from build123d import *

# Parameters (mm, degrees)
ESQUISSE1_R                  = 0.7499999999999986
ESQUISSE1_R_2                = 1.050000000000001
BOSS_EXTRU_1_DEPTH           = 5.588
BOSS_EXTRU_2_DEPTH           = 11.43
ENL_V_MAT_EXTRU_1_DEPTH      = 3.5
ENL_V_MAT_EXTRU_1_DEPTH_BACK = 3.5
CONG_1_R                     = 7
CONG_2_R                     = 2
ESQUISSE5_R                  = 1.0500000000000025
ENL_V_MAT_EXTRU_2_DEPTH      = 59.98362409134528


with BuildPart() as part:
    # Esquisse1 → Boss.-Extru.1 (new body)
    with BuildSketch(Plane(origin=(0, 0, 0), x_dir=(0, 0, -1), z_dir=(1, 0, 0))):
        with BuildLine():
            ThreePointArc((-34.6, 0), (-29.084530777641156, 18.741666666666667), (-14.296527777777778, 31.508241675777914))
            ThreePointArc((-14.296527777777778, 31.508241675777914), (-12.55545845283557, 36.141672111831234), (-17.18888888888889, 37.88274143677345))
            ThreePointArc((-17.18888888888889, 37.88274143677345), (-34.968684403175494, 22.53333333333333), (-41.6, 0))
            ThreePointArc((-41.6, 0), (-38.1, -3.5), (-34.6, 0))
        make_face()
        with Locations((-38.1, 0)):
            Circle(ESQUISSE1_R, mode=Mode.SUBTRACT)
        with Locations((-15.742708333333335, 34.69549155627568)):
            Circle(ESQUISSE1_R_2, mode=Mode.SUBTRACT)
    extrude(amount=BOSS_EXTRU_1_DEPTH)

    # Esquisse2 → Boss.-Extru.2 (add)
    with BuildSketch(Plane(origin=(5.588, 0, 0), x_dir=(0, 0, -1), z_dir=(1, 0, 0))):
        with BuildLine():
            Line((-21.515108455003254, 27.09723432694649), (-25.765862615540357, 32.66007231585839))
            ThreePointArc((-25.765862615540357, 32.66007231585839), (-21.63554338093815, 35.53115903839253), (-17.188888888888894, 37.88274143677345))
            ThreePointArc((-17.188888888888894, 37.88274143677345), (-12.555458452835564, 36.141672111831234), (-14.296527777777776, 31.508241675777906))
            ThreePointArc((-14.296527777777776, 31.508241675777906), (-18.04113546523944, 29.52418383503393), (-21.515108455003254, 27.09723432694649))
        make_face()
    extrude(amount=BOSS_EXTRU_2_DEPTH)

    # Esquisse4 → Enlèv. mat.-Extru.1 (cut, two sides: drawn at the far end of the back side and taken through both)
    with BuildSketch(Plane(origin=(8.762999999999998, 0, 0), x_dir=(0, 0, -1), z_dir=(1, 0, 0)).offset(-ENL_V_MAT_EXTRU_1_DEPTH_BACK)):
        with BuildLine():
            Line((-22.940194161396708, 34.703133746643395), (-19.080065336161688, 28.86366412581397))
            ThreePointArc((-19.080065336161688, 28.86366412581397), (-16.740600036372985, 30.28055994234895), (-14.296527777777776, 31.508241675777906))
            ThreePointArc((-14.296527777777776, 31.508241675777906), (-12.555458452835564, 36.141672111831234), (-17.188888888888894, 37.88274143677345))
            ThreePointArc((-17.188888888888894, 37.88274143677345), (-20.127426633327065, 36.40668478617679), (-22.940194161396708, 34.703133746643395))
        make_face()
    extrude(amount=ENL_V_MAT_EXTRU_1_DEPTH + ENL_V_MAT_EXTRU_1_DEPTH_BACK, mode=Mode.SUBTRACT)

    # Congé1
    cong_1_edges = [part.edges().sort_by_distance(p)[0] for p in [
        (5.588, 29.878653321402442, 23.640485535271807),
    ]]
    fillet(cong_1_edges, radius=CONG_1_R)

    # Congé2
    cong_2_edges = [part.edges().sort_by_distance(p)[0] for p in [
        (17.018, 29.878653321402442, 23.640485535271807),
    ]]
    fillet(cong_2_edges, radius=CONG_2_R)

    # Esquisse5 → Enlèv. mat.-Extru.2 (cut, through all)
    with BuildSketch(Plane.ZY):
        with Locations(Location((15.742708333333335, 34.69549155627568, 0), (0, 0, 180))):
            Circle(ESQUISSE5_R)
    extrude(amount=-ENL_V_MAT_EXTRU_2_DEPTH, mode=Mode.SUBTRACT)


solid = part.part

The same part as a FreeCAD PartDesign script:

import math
import FreeCAD as App
import Part
import Sketcher
from FreeCAD import Vector
Q = App.Units.Quantity


def edges_at(feature, points):
    """Names of the edges that pass closest to the given points."""
    edges = feature.Shape.Edges
    near = lambda p: min(range(len(edges)), key=lambda i: edges[i].distToShape(Part.Vertex(*p))[0])
    return sorted({f"Edge{near(p) + 1}" for p in points})

doc = App.newDocument("Part")
body = doc.addObject("PartDesign::Body", "Body")

# Sketch on YZ plane
sketch1 = body.newObject("Sketcher::SketchObject", "Sketch")
sketch1.AttachmentSupport = (doc.getObject("YZ_Plane"), [""])
sketch1.MapMode = "FlatFace"
sketch1.addGeometry([
    Part.ArcOfCircle(Part.Circle(Vector(0, 0, 0), Vector(0, 0, 1), 34.6), math.radians(24), math.radians(90)),  # 0
    Part.ArcOfCircle(Part.Circle(Vector(34.7, 15.7, 0), Vector(0, 0, 1), 3.5), math.radians(-156), math.radians(24)),  # 1
    Part.ArcOfCircle(Part.Circle(Vector(0, 0, 0), Vector(0, 0, 1), 41.6), math.radians(24), math.radians(90)),  # 2
    Part.ArcOfCircle(Part.Circle(Vector(0, 38.1, 0), Vector(0, 0, 1), 3.5), math.radians(90), math.radians(270)),  # 3
    Part.Circle(Vector(0, 38.1, 0), Vector(0, 0, 1), 0.8),  # 4
    Part.Circle(Vector(34.7, 15.7, 0), Vector(0, 0, 1), 1.1),  # 5
], False)
sketch1.addConstraint([
    Sketcher.Constraint("Tangent", 0, 1, 1, 1),
    Sketcher.Constraint("Tangent", 1, 2, 2, 1),
    Sketcher.Constraint("Tangent", 2, 2, 3, 1),
    Sketcher.Constraint("Tangent", 3, 2, 0, 2),
    Sketcher.Constraint("Coincident", 0, 3, -1, 1),
    Sketcher.Constraint("Coincident", 2, 3, -1, 1),
    Sketcher.Constraint("Coincident", 4, 3, 3, 3),
    Sketcher.Constraint("Coincident", 5, 3, 1, 3),
    Sketcher.Constraint("PointOnObject", 3, 3, -2),
    Sketcher.Constraint("Diameter", 4, Q("1.5 mm")),
    Sketcher.Constraint("Diameter", 5, Q("2.1 mm")),
    Sketcher.Constraint("Radius", 0, Q("34.6 mm")),
    Sketcher.Constraint("Radius", 1, Q("3.5 mm")),
    Sketcher.Constraint("DistanceX", 0, 1, 1, 2, Q("6.3745 mm")),
])
pad1 = body.newObject("PartDesign::Pad", "Pad")
pad1.Profile = sketch1
pad1.Length = 5.588

# Sketch on YZ plane
sketch2 = body.newObject("Sketcher::SketchObject", "Sketch001")
sketch2.AttachmentSupport = (doc.getObject("YZ_Plane"), [""])
sketch2.MapMode = "FlatFace"
sketch2.AttachmentOffset = App.Placement(Vector(0, 0, 5.588), App.Rotation())
sketch2.addGeometry([
    Part.LineSegment(Vector(32.7, 25.8, 0), Vector(27.1, 21.5, 0)),
    Part.ArcOfCircle(Part.Circle(Vector(0, 0, 0), Vector(0, 0, 1), 34.6), math.radians(24.41), math.radians(38.45)),
    Part.ArcOfCircle(Part.Circle(Vector(34.7, 15.7, 0), Vector(0, 0, 1), 3.5), math.radians(-156), math.radians(24)),
    Part.ArcOfCircle(Part.Circle(Vector(0, 0, 0), Vector(0, 0, 1), 41.6), math.radians(24.41), math.radians(38.27)),
], False)
sketch2.addConstraint([
    Sketcher.Constraint("Coincident", 0, 2, 1, 2),
    Sketcher.Constraint("Tangent", 1, 1, 2, 1),
    Sketcher.Constraint("Tangent", 2, 2, 3, 1),
    Sketcher.Constraint("Coincident", 3, 2, 0, 1),
    Sketcher.Constraint("Coincident", 1, 3, -1, 1),
    Sketcher.Constraint("Coincident", 3, 3, -1, 1),
    Sketcher.Constraint("Radius", 1, Q("34.6 mm")),
    Sketcher.Constraint("Radius", 2, Q("3.5 mm")),
    Sketcher.Constraint("DistanceY", 2, 3, 0, 2, Q("5.7724 mm")),
    Sketcher.Constraint("DistanceX", 1, 1, 2, 2, Q("6.3745 mm")),
    Sketcher.Constraint("DistanceX", 3, 2, 2, 2, Q("5.222669 mm")),
])
pad2 = body.newObject("PartDesign::Pad", "Pad001")
pad2.Profile = sketch2
pad2.Length = 11.43

# Sketch on YZ plane
sketch3 = body.newObject("Sketcher::SketchObject", "Sketch002")
sketch3.AttachmentSupport = (doc.getObject("YZ_Plane"), [""])
sketch3.MapMode = "FlatFace"
sketch3.AttachmentOffset = App.Placement(Vector(0, 0, 8.763), App.Rotation())
sketch3.addGeometry([
    Part.LineSegment(Vector(34.7, 22.9, 0), Vector(28.9, 19.1, 0)),
    Part.ArcOfCircle(Part.Circle(Vector(0, 0, 0), Vector(0, 0, 1), 34.6), math.radians(24.41), math.radians(33.47)),
    Part.ArcOfCircle(Part.Circle(Vector(34.7, 15.7, 0), Vector(0, 0, 1), 3.5), math.radians(-156), math.radians(24)),
    Part.ArcOfCircle(Part.Circle(Vector(0, 0, 0), Vector(0, 0, 1), 41.6), math.radians(24.41), math.radians(33.47)),
], False)
sketch3.addConstraint([
    Sketcher.Constraint("Coincident", 0, 2, 1, 2),
    Sketcher.Constraint("Tangent", 1, 1, 2, 1),
    Sketcher.Constraint("Tangent", 2, 2, 3, 1),
    Sketcher.Constraint("Coincident", 3, 2, 0, 1),
    Sketcher.Constraint("Coincident", 1, 3, -1, 1),
    Sketcher.Constraint("Coincident", 3, 3, -1, 1),
    Sketcher.Constraint("Radius", 1, Q("34.6 mm")),
    Sketcher.Constraint("Radius", 2, Q("3.5 mm")),
    Sketcher.Constraint("DistanceX", 1, 1, 2, 2, Q("6.3745 mm")),
    Sketcher.Constraint("DistanceX", 0, 2, 3, 2, Q("5.83947 mm")),
    Sketcher.Constraint("DistanceX", -1, 1, 0, 2, Q("28.863664 mm")),
])
pocket1 = body.newObject("PartDesign::Pocket", "Pocket")
pocket1.Profile = sketch3
pocket1.Type = "TwoLengths"
pocket1.Length = 3.5
pocket1.Length2 = 3.5
pocket1.Reversed = True
doc.recompute()

fillet = body.newObject("PartDesign::Fillet", "Fillet")
fillet.Base = (pocket1, edges_at(pocket1, [(5.588, 29.879, 23.64)]))
fillet.Radius = 7
doc.recompute()

fillet2 = body.newObject("PartDesign::Fillet", "Fillet001")
fillet2.Base = (fillet, edges_at(fillet, [(17.018, 29.879, 23.64)]))
fillet2.Radius = 2

# Sketch on YZ plane
sketch4 = body.newObject("Sketcher::SketchObject", "Sketch003")
sketch4.AttachmentSupport = (doc.getObject("YZ_Plane"), [""])
sketch4.MapMode = "FlatFace"
sketch4.addGeometry(Part.Circle(Vector(34.7, 15.7, 0), Vector(0, 0, 1), 1.1), False)
sketch4.addConstraint([
    Sketcher.Constraint("Diameter", 0, Q("2.1 mm")),
    Sketcher.Constraint("DistanceX", -1, 1, 0, 3, Q("34.695492 mm")),
    Sketcher.Constraint("DistanceY", -1, 1, 0, 3, Q("15.742708 mm")),
])
pocket2 = body.newObject("PartDesign::Pocket", "Pocket001")
pocket2.Profile = sketch4
pocket2.Type = "ThroughAll"
pocket2.Reversed = True

doc.recompute()
